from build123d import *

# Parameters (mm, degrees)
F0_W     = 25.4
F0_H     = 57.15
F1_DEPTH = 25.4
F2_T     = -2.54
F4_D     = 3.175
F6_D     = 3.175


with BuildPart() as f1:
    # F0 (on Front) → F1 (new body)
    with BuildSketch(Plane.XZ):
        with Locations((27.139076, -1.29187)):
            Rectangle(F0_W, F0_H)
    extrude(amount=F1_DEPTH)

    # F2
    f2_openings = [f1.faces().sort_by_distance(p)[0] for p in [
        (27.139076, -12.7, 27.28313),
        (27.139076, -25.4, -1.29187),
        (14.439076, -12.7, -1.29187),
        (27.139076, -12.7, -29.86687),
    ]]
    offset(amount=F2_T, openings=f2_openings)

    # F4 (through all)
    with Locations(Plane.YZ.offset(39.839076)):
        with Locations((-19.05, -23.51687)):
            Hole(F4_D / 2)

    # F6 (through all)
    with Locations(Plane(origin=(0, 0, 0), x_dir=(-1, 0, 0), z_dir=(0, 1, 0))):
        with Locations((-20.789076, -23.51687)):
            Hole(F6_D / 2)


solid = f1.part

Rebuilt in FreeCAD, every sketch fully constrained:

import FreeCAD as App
import Part
import Sketcher
from FreeCAD import Vector
Q = App.Units.Quantity


def faces_at(feature, points):
    """Names of the faces that lie closest to the given points."""
    faces = feature.Shape.Faces
    near = lambda p: min(range(len(faces)), key=lambda i: faces[i].distToShape(Part.Vertex(*p))[0])
    return sorted({f"Face{near(p) + 1}" for p in points})


def add_polygon(sketch, points):
    """Adds a closed chain of lines whose ends are joined by coincident constraints."""
    first, n = sketch.GeometryCount, len(points)
    for a, b in zip(points, points[1:] + points[:1]):
        sketch.addGeometry(Part.LineSegment(App.Vector(*a, 0), App.Vector(*b, 0)), False)
    for i in range(n):
        sketch.addConstraint(Sketcher.Constraint("Coincident", first + i, 2, first + (i + 1) % n, 1))

doc = App.newDocument("Part")
body = doc.addObject("PartDesign::Body", "Body")

# Sketch on XZ plane
sketch1 = body.newObject("Sketcher::SketchObject", "Sketch")
sketch1.AttachmentSupport = (doc.getObject("XZ_Plane"), [""])
sketch1.MapMode = "FlatFace"
add_polygon(sketch1, [(14, 27), (14, -30), (40, -30), (40, 27)])  # lines 0-3
sketch1.addConstraint([
    Sketcher.Constraint("Vertical", 0),
    Sketcher.Constraint("Horizontal", 1),
    Sketcher.Constraint("Vertical", 2),
    Sketcher.Constraint("Horizontal", 3),
    Sketcher.Constraint("DistanceX", 1, 1, 1, 2, Q("1 in")),
    Sketcher.Constraint("DistanceY", 0, 2, 0, 1, Q("2.25 in")),
    Sketcher.Constraint("DistanceY", 0, 2, -1, 1, 29.86687),
    Sketcher.Constraint("DistanceX", -1, 1, 0, 2, 14.439076),
])
pad1 = body.newObject("PartDesign::Pad", "Pad")
pad1.Profile = sketch1
pad1.Length = Q("1 in")
doc.recompute()

thickness = body.newObject("PartDesign::Thickness", "Thickness")
thickness.Base = (pad1, faces_at(pad1, [
    (27.139, -12.7, 27.283),
    (27.139, -25.4, -1.292),
    (14.439, -12.7, -1.292),
    (27.139, -12.7, -29.867),
]))
thickness.Value = Q("0.1 in")
thickness.Reversed = True
thickness.Join = "Arc"

# Sketch on YZ plane
sketch2 = body.newObject("Sketcher::SketchObject", "Sketch001")
sketch2.AttachmentSupport = (doc.getObject("YZ_Plane"), [""])
sketch2.MapMode = "FlatFace"
sketch2.AttachmentOffset = App.Placement(Vector(0, 0, 39.839076), App.Rotation())
sketch2.addGeometry(Part.Circle(Vector(-19.1, -23.5, 0), Vector(0, 0, 1), 1.6), False)
sketch2.addConstraint([
    Sketcher.Constraint("Diameter", 0, Q("0.125 in")),
    Sketcher.Constraint("DistanceX", 0, 3, -1, 1, Q("0.75 in")),
    Sketcher.Constraint("DistanceY", 0, 3, -1, 1, 23.51687),
])
doc.recompute()
hole = body.newObject("PartDesign::Hole", "Hole")
hole.Profile = sketch2
hole.ThreadType = "None"
hole.Diameter = Q("0.125 in")
hole.DepthType = "ThroughAll"

# Sketch on XZ plane
sketch3 = body.newObject("Sketcher::SketchObject", "Sketch002")
sketch3.AttachmentSupport = (doc.getObject("XZ_Plane"), [""])
sketch3.MapMode = "FlatFace"
sketch3.addGeometry(Part.Circle(Vector(20.8, -23.5, 0), Vector(0, 0, 1), 1.6), False)
sketch3.addConstraint([
    Sketcher.Constraint("Diameter", 0, Q("0.125 in")),
    Sketcher.Constraint("DistanceY", 0, 3, -1, 1, 23.51687),
    Sketcher.Constraint("DistanceX", -1, 1, 0, 3, 20.789076),
])
doc.recompute()
hole2 = body.newObject("PartDesign::Hole", "Hole001")
hole2.Profile = sketch3
hole2.ThreadType = "None"
hole2.Diameter = Q("0.125 in")
hole2.DepthType = "ThroughAll"
hole2.Reversed = True

doc.recompute()
